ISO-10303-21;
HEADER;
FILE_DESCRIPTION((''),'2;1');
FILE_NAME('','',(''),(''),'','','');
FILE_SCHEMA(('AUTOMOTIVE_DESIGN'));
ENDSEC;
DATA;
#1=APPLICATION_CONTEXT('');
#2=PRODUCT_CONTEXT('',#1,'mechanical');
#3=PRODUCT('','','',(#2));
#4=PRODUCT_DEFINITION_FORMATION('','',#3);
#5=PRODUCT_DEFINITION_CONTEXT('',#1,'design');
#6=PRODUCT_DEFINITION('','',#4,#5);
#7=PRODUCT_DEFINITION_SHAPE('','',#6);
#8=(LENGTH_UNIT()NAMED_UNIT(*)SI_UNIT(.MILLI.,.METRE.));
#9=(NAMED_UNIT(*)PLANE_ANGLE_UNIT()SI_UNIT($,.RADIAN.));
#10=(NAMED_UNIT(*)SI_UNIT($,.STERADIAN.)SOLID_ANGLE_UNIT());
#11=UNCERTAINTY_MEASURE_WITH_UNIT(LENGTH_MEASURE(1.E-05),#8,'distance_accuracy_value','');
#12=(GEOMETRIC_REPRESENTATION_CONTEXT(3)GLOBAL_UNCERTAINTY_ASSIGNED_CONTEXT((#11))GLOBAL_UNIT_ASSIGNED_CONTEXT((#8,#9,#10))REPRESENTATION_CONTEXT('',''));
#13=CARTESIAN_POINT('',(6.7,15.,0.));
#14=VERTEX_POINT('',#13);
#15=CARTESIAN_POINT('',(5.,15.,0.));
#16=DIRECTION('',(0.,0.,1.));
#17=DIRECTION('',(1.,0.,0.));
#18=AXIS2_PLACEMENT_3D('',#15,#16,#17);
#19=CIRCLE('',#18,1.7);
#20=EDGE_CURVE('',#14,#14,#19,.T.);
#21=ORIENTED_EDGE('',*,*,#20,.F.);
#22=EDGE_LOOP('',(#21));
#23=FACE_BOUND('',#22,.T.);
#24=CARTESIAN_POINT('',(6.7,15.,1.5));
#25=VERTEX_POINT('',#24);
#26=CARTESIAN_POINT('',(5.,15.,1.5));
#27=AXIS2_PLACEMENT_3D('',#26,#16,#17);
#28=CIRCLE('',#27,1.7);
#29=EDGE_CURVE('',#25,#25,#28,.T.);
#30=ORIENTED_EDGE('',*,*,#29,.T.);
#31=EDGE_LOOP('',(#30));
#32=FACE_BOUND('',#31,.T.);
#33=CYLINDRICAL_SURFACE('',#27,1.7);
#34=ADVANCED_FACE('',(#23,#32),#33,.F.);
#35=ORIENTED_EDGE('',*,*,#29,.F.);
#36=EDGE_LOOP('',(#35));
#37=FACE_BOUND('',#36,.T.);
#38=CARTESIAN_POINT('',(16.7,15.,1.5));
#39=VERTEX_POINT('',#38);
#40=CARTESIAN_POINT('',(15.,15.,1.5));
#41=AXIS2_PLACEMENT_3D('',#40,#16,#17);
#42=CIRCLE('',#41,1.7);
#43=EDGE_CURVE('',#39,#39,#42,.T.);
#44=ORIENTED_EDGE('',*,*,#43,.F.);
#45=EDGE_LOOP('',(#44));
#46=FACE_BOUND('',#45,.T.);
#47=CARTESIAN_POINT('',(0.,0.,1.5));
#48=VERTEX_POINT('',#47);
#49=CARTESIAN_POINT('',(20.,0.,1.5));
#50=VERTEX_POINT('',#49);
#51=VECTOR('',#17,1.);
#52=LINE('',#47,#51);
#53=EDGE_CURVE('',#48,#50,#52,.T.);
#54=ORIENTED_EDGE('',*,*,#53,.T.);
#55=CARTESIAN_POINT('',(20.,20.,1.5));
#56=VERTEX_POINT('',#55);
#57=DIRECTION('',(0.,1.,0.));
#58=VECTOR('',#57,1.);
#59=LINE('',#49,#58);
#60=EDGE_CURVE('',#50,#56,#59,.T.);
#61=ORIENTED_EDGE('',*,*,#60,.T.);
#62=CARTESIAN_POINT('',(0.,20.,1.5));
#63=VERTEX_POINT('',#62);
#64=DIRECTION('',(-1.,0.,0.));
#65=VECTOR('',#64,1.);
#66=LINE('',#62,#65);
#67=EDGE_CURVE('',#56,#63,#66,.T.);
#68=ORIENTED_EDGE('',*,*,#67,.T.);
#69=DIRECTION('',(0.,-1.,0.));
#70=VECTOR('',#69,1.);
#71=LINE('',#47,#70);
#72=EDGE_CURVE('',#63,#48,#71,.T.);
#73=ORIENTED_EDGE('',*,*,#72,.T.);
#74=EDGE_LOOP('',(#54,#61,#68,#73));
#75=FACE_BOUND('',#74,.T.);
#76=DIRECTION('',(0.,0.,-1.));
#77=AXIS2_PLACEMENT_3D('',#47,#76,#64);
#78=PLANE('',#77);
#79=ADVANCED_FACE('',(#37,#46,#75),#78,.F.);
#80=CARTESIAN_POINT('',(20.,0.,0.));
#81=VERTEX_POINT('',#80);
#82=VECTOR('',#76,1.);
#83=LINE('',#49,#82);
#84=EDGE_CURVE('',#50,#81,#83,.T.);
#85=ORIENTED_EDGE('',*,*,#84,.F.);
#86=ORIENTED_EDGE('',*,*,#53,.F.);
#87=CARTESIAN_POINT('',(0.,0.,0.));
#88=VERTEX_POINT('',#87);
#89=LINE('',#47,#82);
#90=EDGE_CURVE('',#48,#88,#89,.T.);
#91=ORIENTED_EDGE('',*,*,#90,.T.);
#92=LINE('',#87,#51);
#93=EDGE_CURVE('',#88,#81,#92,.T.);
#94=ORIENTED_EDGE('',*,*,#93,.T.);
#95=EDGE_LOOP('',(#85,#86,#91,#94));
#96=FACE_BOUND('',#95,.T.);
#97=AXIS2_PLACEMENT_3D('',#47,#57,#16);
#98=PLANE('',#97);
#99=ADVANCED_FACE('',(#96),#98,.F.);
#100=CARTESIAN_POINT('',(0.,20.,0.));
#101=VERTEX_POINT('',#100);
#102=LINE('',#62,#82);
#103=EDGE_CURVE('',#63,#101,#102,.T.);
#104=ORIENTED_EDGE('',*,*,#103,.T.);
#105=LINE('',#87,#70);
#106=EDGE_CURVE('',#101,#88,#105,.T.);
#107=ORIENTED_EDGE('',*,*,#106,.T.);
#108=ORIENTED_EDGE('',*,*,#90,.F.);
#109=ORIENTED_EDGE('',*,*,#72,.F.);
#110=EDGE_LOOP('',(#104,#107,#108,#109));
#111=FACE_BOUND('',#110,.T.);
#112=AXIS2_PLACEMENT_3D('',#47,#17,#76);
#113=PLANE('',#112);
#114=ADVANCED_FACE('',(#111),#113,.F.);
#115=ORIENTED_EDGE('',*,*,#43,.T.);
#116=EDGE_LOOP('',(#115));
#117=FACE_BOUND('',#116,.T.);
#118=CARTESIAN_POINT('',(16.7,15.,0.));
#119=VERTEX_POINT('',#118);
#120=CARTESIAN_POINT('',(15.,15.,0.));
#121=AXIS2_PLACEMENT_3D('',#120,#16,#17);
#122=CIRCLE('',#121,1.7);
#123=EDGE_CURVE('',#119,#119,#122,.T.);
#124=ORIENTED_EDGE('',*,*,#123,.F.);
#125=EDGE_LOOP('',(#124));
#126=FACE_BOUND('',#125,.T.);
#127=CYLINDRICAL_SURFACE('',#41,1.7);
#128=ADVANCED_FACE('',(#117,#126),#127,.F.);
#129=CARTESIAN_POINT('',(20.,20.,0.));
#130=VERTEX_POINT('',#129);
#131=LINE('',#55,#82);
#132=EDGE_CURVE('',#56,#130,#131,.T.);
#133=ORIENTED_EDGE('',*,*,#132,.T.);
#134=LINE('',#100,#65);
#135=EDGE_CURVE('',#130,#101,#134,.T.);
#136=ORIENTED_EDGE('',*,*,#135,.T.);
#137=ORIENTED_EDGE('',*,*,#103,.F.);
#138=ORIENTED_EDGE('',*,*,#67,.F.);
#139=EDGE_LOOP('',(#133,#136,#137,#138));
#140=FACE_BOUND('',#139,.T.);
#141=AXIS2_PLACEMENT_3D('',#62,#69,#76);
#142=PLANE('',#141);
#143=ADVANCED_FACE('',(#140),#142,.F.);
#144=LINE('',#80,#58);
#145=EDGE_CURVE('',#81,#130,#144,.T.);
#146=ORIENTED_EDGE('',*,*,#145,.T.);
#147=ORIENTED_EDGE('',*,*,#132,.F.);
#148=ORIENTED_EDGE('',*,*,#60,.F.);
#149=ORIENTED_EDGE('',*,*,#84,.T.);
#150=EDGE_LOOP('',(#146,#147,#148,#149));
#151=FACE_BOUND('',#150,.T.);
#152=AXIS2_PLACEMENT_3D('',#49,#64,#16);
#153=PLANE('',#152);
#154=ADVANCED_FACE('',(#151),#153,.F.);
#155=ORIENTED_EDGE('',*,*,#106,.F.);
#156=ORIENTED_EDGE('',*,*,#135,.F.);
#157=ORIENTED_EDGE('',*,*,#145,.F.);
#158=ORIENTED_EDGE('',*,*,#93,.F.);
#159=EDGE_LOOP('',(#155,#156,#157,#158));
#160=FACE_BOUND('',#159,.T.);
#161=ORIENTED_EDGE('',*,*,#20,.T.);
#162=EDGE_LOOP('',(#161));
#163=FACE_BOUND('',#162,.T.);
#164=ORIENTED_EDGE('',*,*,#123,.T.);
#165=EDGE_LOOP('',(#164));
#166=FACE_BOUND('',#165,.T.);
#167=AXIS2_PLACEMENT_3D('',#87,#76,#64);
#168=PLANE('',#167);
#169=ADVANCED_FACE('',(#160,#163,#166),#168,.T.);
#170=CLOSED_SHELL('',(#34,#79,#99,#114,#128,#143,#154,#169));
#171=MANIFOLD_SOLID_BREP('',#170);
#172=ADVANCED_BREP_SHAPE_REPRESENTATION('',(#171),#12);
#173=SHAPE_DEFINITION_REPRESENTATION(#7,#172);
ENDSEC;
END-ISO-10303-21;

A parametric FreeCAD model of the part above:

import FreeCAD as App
import Part
import Sketcher

V = App.Vector


def add_polygon(sketch, points):
    """Adds a closed chain of lines whose ends are joined by coincident constraints."""
    first, n = sketch.GeometryCount, len(points)
    for a, b in zip(points, points[1:] + points[:1]):
        sketch.addGeometry(Part.LineSegment(App.Vector(*a, 0), App.Vector(*b, 0)), False)
    for i in range(n):
        sketch.addConstraint(Sketcher.Constraint("Coincident", first + i, 2, first + (i + 1) % n, 1))

doc = App.newDocument("Part")
body = doc.addObject("PartDesign::Body", "Body")

sketch1 = doc.addObject("Sketcher::SketchObject", "Sketch")
body.addObject(sketch1)
sketch1.AttachmentSupport = (doc.XY_Plane, [""])
sketch1.MapMode = "FlatFace"
add_polygon(sketch1, [(0, 20), (0, 0), (20, 0), (20, 20)])
sketch1.addConstraint([
    Sketcher.Constraint("Vertical", 0),
    Sketcher.Constraint("Horizontal", 1),
    Sketcher.Constraint("Vertical", 2),
    Sketcher.Constraint("Horizontal", 3),
    Sketcher.Constraint("Coincident", 0, 2, -1, 1),
    Sketcher.Constraint("Equal", 3, 0),
    Sketcher.Constraint("DistanceX", 1, 1, 1, 2, 20.0),
])
pad1 = doc.addObject("PartDesign::Pad", "Pad")
body.addObject(pad1)
pad1.Profile = sketch1
pad1.Length = 1.5

sketch2 = doc.addObject("Sketcher::SketchObject", "Sketch001")
body.addObject(sketch2)
sketch2.AttachmentSupport = (doc.XY_Plane, [""])
sketch2.MapMode = "FlatFace"
sketch2.AttachmentOffset = App.Placement(V(0, 0, 1.5), App.Rotation())
sketch2.addGeometry([
    Part.Circle(V(5, 15, 0), V(0, 0, 1), 1.7),
    Part.Circle(V(15, 15, 0), V(0, 0, 1), 1.7),
], False)
sketch2.addConstraint([
    Sketcher.Constraint("Equal", 0, 1),
    Sketcher.Constraint("Horizontal", 0, 3, 1, 3),
    Sketcher.Constraint("Diameter", 0, 3.4),
    Sketcher.Constraint("DistanceX", -1, 1, 0, 3, 5.0),
    Sketcher.Constraint("DistanceY", -1, 1, 0, 3, 15.0),
    Sketcher.Constraint("DistanceX", -1, 1, 1, 3, 15.0),
])
doc.recompute()
hole = doc.addObject("PartDesign::Hole", "Hole")
body.addObject(hole)
hole.Profile = sketch2
hole.ThreadType = "None"
hole.Diameter = 3.4
hole.DepthType = "ThroughAll"

doc.recompute()
